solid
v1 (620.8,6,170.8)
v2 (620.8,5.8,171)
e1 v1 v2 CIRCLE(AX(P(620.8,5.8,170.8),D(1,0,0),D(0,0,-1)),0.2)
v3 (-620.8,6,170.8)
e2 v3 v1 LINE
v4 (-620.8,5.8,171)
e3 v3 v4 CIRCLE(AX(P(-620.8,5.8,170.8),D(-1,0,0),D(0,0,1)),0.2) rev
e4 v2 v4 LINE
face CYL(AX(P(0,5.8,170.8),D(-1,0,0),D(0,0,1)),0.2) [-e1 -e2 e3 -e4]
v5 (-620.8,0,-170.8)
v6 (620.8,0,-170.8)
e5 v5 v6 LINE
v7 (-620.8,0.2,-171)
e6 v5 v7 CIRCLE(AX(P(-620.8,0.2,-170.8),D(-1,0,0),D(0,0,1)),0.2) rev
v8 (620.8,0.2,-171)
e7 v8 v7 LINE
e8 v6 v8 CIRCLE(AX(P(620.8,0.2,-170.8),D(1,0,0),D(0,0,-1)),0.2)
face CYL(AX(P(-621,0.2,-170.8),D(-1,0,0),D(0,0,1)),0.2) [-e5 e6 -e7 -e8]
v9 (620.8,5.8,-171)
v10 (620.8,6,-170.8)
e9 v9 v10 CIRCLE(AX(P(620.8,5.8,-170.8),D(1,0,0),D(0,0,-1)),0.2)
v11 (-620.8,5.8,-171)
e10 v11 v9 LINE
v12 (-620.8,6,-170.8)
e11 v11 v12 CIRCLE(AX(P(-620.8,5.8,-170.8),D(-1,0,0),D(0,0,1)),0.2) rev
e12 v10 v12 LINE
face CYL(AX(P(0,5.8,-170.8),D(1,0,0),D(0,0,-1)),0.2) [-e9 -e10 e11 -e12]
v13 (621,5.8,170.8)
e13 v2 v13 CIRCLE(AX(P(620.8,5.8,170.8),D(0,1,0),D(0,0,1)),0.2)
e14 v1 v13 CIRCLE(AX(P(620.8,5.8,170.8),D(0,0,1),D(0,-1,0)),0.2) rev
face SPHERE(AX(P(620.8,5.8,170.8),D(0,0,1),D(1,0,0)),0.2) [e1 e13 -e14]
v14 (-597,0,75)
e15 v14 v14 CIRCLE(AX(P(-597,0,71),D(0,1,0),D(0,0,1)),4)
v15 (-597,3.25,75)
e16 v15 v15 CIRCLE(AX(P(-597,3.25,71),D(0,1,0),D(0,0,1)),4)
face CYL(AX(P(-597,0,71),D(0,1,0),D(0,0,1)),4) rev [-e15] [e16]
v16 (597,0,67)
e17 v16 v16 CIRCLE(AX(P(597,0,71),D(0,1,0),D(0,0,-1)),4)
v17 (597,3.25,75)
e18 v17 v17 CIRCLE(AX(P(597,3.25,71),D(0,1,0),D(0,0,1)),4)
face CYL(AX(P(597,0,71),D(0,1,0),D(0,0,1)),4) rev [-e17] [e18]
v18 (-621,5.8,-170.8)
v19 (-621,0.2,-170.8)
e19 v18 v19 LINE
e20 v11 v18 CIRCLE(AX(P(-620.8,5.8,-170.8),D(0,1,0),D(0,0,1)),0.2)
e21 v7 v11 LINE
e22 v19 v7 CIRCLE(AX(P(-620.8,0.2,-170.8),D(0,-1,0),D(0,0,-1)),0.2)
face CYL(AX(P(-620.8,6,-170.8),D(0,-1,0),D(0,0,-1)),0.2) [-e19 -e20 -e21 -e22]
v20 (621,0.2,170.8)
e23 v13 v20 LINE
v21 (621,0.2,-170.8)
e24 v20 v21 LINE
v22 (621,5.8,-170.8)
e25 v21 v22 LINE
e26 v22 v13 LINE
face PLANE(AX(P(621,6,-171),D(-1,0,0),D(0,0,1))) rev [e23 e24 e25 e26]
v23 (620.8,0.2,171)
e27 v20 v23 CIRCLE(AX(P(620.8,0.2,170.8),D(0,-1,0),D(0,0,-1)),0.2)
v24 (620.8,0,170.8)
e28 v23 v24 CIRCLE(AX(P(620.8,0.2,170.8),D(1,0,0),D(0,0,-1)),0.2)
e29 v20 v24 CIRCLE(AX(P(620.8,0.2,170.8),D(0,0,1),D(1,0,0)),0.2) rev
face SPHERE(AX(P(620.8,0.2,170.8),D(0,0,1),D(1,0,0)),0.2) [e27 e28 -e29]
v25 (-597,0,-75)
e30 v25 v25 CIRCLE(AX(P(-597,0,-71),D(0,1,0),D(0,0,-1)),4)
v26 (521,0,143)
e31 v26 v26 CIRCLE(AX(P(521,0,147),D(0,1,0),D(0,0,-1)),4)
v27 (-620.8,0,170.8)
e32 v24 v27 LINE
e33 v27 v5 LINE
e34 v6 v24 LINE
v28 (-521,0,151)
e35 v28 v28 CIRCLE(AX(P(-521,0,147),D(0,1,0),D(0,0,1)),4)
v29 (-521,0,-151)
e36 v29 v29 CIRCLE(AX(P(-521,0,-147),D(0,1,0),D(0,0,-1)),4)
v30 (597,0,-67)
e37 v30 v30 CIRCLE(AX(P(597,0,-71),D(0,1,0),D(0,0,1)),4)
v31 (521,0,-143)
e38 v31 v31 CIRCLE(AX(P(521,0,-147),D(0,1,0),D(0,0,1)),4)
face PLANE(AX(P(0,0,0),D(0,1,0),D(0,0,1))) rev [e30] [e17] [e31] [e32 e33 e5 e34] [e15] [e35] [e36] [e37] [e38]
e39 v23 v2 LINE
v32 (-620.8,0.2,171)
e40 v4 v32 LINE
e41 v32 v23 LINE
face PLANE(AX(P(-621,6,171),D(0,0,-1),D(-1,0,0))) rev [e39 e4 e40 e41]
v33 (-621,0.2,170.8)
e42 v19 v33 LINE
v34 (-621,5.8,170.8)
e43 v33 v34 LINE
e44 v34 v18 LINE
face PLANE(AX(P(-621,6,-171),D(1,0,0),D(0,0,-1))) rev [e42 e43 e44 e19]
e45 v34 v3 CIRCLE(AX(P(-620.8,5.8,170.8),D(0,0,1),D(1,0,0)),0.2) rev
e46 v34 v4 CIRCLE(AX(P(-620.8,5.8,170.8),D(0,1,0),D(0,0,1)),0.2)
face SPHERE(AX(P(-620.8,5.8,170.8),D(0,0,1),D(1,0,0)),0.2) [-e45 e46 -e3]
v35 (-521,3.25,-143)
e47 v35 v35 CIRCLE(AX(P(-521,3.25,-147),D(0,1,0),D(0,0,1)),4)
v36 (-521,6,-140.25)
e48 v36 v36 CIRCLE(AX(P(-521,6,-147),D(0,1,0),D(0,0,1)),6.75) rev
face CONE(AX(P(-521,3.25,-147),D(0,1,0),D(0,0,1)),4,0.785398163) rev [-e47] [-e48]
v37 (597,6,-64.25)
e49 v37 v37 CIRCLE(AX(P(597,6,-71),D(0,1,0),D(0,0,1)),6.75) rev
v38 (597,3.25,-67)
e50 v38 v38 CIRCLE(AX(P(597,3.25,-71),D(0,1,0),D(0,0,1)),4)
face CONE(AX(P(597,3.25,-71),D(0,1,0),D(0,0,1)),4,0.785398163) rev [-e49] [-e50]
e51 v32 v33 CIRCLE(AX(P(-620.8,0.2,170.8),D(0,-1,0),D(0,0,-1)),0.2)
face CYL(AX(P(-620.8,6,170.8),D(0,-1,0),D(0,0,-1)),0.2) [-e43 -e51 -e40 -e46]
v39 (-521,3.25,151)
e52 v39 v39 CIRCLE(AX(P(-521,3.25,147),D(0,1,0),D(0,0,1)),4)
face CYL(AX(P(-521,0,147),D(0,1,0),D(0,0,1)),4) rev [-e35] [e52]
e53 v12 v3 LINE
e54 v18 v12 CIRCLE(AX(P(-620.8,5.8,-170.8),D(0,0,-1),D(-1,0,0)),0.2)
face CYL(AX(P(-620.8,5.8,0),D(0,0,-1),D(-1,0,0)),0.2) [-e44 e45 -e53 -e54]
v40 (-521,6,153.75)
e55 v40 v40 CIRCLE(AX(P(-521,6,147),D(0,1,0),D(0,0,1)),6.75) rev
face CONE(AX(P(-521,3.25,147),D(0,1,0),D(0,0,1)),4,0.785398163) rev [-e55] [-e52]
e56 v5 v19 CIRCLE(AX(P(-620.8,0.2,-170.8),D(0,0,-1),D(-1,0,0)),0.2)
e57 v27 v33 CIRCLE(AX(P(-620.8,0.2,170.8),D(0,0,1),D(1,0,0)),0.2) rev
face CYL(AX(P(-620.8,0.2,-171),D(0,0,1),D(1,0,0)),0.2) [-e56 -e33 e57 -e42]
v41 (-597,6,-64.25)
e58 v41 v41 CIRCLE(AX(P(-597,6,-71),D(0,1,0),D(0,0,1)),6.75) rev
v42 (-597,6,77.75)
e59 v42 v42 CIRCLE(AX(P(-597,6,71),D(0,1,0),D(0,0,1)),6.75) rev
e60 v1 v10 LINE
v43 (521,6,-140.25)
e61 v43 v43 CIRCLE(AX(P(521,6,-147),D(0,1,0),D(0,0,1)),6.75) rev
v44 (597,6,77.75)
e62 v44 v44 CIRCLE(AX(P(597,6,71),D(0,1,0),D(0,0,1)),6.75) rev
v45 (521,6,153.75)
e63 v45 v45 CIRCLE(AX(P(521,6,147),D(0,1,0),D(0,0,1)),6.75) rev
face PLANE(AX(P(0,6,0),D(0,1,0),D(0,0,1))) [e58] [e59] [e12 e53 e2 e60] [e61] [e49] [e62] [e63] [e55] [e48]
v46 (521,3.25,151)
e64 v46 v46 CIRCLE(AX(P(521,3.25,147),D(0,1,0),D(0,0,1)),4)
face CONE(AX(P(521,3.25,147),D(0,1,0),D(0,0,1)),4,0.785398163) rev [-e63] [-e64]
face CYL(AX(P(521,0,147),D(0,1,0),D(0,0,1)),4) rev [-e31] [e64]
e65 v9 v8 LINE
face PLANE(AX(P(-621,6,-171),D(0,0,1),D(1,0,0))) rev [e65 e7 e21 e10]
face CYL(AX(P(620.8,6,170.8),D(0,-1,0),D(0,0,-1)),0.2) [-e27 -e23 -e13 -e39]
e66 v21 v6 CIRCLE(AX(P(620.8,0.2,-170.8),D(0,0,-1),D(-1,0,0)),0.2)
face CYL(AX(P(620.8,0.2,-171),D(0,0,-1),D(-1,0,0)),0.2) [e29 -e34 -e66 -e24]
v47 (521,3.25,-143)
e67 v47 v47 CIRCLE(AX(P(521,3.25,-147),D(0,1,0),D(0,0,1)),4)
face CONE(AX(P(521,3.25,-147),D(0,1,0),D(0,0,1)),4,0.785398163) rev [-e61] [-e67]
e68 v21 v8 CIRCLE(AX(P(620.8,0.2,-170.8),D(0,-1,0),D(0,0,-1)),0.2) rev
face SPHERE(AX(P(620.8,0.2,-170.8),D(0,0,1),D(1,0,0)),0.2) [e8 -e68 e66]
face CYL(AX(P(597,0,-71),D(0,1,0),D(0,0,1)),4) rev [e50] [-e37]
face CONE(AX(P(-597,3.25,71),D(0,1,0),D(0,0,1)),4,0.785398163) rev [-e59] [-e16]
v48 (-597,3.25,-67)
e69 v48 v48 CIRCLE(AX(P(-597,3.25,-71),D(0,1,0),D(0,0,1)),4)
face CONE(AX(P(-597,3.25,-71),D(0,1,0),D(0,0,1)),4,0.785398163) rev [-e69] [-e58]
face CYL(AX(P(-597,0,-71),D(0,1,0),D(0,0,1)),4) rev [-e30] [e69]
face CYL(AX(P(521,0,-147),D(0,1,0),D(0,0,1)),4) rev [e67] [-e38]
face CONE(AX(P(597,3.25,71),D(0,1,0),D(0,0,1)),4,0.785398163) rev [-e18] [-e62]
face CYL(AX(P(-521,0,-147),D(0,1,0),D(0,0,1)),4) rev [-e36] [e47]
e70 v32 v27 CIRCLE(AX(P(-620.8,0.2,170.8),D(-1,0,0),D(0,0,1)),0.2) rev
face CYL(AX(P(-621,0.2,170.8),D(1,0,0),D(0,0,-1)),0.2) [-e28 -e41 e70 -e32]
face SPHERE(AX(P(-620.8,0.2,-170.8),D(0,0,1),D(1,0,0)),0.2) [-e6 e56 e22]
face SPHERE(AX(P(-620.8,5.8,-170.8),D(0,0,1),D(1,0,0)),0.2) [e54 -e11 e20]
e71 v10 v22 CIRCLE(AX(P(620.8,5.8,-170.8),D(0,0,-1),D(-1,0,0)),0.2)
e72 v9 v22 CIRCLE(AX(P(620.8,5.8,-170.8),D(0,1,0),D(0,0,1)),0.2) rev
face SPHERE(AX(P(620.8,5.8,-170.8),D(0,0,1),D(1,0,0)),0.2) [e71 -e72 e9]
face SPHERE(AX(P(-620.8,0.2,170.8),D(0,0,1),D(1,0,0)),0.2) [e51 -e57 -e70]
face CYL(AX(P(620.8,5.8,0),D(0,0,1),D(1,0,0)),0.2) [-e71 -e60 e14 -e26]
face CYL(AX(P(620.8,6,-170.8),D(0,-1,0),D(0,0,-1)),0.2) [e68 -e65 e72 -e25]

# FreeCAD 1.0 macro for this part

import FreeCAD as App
import Part
import Sketcher

V = App.Vector
Q = App.Units.Quantity


def edges_at(feature, points):
    """Names of the edges that pass closest to the given points."""
    edges = feature.Shape.Edges
    near = lambda p: min(range(len(edges)), key=lambda i: edges[i].distToShape(Part.Vertex(*p))[0])
    return sorted({f"Edge{near(p) + 1}" for p in points})

doc = App.newDocument("Part")
body = doc.addObject("PartDesign::Body", "Body")

sketch1 = body.newObject("Sketcher::SketchObject", "Sketch")
sketch1.AttachmentSupport = (doc.getObject("XZ_Plane"), [""])
sketch1.MapMode = "FlatFace"
sketch1.addGeometry(Part.LineSegment(V(-621, -171, 0), V(-621, 171, 0)), False)
sketch1.addGeometry(Part.LineSegment(V(-621, 171, 0), V(621, 171, 0)), False)
sketch1.addGeometry(Part.LineSegment(V(621, 171, 0), V(621, -171, 0)), False)
sketch1.addGeometry(Part.LineSegment(V(621, -171, 0), V(-621, -171, 0)), False)
sketch1.addConstraint(Sketcher.Constraint("Coincident", 0, 2, 1, 1))
sketch1.addConstraint(Sketcher.Constraint("Coincident", 1, 2, 2, 1))
sketch1.addConstraint(Sketcher.Constraint("Coincident", 2, 2, 3, 1))
sketch1.addConstraint(Sketcher.Constraint("Coincident", 3, 2, 0, 1))
sketch1.addConstraint(Sketcher.Constraint("Vertical", 0))
sketch1.addConstraint(Sketcher.Constraint("Horizontal", 1))
sketch1.addConstraint(Sketcher.Constraint("Vertical", 2))
sketch1.addConstraint(Sketcher.Constraint("Horizontal", 3))
sketch1.addConstraint(Sketcher.Constraint("Symmetric", 0, 2, 2, 2, -1, 1))
sketch1.addConstraint(Sketcher.Constraint("DistanceX", 1, 1, 1, 2, Q("1242 mm")))
sketch1.addConstraint(Sketcher.Constraint("DistanceY", 0, 1, 0, 2, Q("342 mm")))
pad1 = body.newObject("PartDesign::Pad", "Pad")
pad1.Profile = sketch1
pad1.Length = 6
pad1.Reversed = True

sketch2 = body.newObject("Sketcher::SketchObject", "Sketch001")
sketch2.AttachmentSupport = (doc.getObject("XZ_Plane"), [""])
sketch2.MapMode = "FlatFace"
sketch2.AttachmentOffset = App.Placement(V(0, 0, -6), App.Rotation())
sketch2.addGeometry(Part.Circle(V(-521, 147, 0), V(0, 0, 1), 4), False)
sketch2.addGeometry(Part.Circle(V(521, 147, 0), V(0, 0, 1), 4), False)
sketch2.addGeometry(Part.Circle(V(-597, 71, 0), V(0, 0, 1), 4), False)
sketch2.addGeometry(Part.Circle(V(597, 71, 0), V(0, 0, 1), 4), False)
sketch2.addGeometry(Part.Circle(V(597, -71, 0), V(0, 0, 1), 4), False)
sketch2.addGeometry(Part.Circle(V(521, -147, 0), V(0, 0, 1), 4), False)
sketch2.addGeometry(Part.Circle(V(-521, -147, 0), V(0, 0, 1), 4), False)
sketch2.addGeometry(Part.Circle(V(-597, -71, 0), V(0, 0, 1), 4), False)
sketch2.addConstraint(Sketcher.Constraint("Equal", 0, 1))
sketch2.addConstraint(Sketcher.Constraint("Equal", 1, 2))
sketch2.addConstraint(Sketcher.Constraint("Equal", 2, 3))
sketch2.addConstraint(Sketcher.Constraint("Equal", 3, 4))
sketch2.addConstraint(Sketcher.Constraint("Equal", 4, 5))
sketch2.addConstraint(Sketcher.Constraint("Equal", 5, 6))
sketch2.addConstraint(Sketcher.Constraint("Equal", 6, 7))
sketch2.addConstraint(Sketcher.Constraint("Symmetric", 2, 3, 4, 3, -1, 1))
sketch2.addConstraint(Sketcher.Constraint("Symmetric", 0, 3, 5, 3, -1, 1))
sketch2.addConstraint(Sketcher.Constraint("Symmetric", 1, 3, 6, 3, -1, 1))
sketch2.addConstraint(Sketcher.Constraint("Symmetric", 3, 3, 7, 3, -1, 1))
sketch2.addConstraint(Sketcher.Constraint("Symmetric", 0, 3, 1, 3, -2))
sketch2.addConstraint(Sketcher.Constraint("Symmetric", 2, 3, 3, 3, -2))
sketch2.addConstraint(Sketcher.Constraint("Diameter", 0, Q("8 mm")))
sketch2.addConstraint(Sketcher.Constraint("DistanceX", 0, 3, -1, 1, Q("521 mm")))
sketch2.addConstraint(Sketcher.Constraint("DistanceY", -1, 1, 0, 3, Q("147 mm")))
sketch2.addConstraint(Sketcher.Constraint("DistanceX", 2, 3, -1, 1, Q("597 mm")))
sketch2.addConstraint(Sketcher.Constraint("DistanceY", -1, 1, 2, 3, Q("71 mm")))
pocket1 = body.newObject("PartDesign::Pocket", "Pocket")
pocket1.Profile = sketch2
pocket1.Type = "ThroughAll"
pocket1.Reversed = True
doc.recompute()

chamfer = body.newObject("PartDesign::Chamfer", "Chamfer")
chamfer.Base = (pocket1, edges_at(pocket1, [
    (-525, 6, 147),
    (517, 6, 147),
    (-601, 6, 71),
    (593, 6, 71),
    (593, 6, -71),
    (517, 6, -147),
    (-525, 6, -147),
    (-601, 6, -71),
]))
chamfer.Size = 2.75
doc.recompute()

fillet = body.newObject("PartDesign::Fillet", "Fillet")
fillet.Base = (chamfer, edges_at(chamfer, [
    (-621, 6, 0),
    (0, 6, 171),
    (621, 6, 0),
    (0, 0, 171),
    (-621, 0, 0),
    (0, 0, -171),
    (621, 0, 0),
    (0, 6, -171),
    (621, 3, 171),
    (-621, 3, 171),
    (-621, 3, -171),
    (621, 3, -171),
]))
fillet.Radius = 0.2

doc.recompute()
